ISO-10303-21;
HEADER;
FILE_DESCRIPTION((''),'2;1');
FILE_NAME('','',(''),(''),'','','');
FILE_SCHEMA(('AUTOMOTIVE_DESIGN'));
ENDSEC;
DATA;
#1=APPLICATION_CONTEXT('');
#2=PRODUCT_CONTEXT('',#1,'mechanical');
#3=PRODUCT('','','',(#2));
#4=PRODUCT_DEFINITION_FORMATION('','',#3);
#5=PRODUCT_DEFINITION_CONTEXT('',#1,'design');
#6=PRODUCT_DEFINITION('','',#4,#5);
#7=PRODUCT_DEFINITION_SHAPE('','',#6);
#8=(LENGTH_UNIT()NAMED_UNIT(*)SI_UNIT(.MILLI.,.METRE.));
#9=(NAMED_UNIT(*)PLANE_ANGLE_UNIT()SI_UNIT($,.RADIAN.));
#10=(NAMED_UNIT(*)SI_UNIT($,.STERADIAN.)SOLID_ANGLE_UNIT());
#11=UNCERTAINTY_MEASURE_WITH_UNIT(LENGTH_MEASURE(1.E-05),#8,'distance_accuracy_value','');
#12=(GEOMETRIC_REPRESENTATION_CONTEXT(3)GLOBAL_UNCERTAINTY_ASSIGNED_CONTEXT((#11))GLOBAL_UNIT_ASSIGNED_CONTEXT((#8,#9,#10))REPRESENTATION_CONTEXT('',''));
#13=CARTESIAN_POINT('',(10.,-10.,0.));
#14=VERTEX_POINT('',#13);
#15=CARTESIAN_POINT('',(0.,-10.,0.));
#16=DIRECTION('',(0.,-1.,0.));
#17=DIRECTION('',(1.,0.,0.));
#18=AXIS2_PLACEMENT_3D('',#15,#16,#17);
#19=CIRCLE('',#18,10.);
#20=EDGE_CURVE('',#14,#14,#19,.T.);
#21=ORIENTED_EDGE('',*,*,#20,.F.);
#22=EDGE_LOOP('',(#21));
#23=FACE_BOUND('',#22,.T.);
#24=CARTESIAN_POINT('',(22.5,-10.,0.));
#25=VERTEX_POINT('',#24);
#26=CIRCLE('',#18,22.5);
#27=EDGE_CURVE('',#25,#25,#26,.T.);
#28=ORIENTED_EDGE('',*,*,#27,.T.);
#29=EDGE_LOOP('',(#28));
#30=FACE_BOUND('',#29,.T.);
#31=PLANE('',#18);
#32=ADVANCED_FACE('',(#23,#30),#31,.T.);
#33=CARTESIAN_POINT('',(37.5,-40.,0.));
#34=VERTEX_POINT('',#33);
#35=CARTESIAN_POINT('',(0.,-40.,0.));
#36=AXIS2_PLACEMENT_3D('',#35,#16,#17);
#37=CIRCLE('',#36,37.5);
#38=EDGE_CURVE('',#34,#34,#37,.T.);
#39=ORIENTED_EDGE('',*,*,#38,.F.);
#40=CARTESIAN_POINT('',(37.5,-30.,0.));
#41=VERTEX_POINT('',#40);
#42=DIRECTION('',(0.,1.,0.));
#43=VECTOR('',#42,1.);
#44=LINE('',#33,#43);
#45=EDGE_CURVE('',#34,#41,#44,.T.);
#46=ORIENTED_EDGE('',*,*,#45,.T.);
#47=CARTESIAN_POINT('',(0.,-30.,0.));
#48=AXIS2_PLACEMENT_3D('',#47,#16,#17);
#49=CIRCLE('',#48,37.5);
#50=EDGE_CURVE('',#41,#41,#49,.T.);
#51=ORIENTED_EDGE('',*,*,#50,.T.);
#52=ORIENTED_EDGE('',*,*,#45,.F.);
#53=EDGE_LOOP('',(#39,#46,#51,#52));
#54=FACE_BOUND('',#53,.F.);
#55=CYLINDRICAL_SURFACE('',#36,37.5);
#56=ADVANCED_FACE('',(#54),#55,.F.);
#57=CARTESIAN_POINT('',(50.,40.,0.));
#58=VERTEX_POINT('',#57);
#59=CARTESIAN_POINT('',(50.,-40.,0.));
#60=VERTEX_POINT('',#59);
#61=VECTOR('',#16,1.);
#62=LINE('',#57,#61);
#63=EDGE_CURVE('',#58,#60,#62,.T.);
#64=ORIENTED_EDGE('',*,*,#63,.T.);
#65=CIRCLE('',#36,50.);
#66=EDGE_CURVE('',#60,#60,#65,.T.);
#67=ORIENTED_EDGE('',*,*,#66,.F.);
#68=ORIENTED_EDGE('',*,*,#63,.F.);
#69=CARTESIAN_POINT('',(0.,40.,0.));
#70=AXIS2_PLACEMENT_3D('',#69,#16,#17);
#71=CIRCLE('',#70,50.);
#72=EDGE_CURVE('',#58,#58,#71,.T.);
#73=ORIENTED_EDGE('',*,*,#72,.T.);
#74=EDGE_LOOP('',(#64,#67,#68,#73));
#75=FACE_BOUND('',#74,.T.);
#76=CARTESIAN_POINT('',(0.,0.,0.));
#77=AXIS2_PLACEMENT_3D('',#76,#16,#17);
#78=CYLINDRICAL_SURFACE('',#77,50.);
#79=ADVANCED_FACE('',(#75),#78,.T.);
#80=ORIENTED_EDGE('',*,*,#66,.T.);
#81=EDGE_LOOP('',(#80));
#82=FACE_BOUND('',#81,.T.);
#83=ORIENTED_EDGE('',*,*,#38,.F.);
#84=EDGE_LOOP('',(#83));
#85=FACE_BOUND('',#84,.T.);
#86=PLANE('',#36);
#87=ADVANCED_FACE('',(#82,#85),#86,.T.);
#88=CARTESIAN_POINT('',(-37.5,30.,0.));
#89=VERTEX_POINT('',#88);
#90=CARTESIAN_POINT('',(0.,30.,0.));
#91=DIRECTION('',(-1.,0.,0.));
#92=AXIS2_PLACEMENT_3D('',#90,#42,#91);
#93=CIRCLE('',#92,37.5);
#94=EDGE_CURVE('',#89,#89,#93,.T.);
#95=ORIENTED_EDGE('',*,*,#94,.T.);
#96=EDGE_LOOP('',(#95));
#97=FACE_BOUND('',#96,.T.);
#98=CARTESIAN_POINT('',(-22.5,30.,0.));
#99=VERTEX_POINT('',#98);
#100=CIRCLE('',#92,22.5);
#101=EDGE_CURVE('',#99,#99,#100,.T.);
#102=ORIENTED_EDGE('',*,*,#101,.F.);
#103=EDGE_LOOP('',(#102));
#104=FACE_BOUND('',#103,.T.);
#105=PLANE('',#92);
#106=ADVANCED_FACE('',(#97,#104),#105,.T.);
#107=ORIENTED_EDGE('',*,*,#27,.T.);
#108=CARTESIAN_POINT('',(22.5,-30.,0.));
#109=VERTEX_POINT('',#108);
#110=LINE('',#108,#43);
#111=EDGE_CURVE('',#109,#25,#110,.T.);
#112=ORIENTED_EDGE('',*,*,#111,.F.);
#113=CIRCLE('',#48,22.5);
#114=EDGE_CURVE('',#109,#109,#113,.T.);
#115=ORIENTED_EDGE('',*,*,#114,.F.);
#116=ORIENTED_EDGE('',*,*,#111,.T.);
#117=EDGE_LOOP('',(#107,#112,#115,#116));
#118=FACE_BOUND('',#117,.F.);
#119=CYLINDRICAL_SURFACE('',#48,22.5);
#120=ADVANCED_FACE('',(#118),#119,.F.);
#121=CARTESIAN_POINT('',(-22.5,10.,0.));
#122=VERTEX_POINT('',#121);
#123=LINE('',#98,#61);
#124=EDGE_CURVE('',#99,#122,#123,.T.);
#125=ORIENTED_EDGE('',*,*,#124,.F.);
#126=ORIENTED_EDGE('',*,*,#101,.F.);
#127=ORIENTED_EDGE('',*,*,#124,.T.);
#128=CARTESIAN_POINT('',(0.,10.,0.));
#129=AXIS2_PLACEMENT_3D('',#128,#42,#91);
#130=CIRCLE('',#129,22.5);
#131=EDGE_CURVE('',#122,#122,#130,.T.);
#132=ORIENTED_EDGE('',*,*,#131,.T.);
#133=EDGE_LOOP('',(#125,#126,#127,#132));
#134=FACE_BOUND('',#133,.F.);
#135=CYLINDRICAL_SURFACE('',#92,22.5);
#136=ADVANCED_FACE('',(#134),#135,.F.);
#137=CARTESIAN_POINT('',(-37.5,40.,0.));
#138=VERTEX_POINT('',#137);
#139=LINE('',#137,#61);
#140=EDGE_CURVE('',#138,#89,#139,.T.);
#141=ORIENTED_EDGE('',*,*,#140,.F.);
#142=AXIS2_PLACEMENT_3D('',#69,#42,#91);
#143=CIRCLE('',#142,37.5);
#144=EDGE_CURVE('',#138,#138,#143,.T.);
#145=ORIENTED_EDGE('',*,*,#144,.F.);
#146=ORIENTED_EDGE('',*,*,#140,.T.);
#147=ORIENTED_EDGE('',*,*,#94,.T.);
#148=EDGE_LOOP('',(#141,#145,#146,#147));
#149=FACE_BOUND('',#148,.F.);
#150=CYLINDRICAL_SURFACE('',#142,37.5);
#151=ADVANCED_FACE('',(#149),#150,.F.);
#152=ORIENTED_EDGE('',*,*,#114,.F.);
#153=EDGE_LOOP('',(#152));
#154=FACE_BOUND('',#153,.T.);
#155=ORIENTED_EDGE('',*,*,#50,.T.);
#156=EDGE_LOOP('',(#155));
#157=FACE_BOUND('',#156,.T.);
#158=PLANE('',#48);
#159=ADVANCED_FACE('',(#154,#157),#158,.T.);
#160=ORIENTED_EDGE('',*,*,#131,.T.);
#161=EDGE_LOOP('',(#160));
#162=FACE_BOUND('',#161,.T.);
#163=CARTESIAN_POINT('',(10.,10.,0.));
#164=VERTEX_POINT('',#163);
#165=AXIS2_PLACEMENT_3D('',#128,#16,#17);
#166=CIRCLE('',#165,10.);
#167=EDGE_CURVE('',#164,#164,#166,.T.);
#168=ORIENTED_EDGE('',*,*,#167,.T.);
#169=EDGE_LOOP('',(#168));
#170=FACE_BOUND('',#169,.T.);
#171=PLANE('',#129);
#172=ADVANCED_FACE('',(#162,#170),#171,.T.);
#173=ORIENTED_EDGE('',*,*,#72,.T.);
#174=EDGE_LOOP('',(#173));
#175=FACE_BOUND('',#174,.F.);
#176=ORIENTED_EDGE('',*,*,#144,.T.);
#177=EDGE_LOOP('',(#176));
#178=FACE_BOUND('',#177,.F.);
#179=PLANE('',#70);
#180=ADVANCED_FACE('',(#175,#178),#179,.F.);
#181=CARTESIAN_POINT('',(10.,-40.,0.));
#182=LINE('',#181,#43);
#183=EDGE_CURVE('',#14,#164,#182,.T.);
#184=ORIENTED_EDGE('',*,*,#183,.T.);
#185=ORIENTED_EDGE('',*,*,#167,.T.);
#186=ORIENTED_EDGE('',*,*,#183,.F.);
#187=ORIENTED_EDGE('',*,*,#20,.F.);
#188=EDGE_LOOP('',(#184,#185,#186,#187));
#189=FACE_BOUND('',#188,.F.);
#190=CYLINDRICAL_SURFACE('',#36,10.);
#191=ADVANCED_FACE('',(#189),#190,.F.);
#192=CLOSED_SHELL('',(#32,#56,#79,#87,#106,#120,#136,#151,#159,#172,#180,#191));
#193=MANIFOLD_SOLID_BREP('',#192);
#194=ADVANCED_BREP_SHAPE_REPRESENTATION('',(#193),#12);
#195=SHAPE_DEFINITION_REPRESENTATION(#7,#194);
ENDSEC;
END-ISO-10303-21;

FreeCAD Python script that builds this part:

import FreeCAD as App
import Part
import Sketcher

V = App.Vector

doc = App.newDocument("Part")
params = doc.addObject("Spreadsheet::Sheet", "Params")
for row, (alias, value) in enumerate([
    ("sketch1_diameter", "100 mm"),
    ("pad1_length", "80 mm"),
    ("sketch2_diameter", "20 mm"),
    ("sketch3_diameter", "75 mm"),
    ("pocket2_length", "10 mm"),
    ("sketch4_diameter", "45 mm"),
    ("pocket3_length", "20 mm"),
    ("sketch5_diameter", "75 mm"),
    ("pocket4_length", "10 mm"),
    ("sketch6_diameter", "45 mm"),
    ("pocket5_length", "20 mm"),
], start=1):
    params.set(f"A{row}", alias)
    params.set(f"B{row}", "=" + value)
    params.setAlias(f"B{row}", alias)

body = doc.addObject("PartDesign::Body", "Body")

# Sketch on XZ plane
sketch1 = doc.addObject("Sketcher::SketchObject", "Sketch")
body.addObject(sketch1)
sketch1.AttachmentSupport = (doc.XZ_Plane, [""])
sketch1.MapMode = "FlatFace"
sketch1.addGeometry(Part.Circle(V(0, 0, 0), V(0, 0, 1), 50), False)
sketch1.addConstraint([
    Sketcher.Constraint("Coincident", 0, 3, -1, 1),
    Sketcher.Constraint("Diameter", 0, 100.0),
])
sketch1.setExpression("Constraints[1]", "Params.sketch1_diameter")
pad1 = doc.addObject("PartDesign::Pad", "Pad")
body.addObject(pad1)
pad1.Profile = sketch1
pad1.setExpression("Length", "Params.pad1_length")
pad1.Midplane = True

# Sketch on XZ plane
sketch2 = doc.addObject("Sketcher::SketchObject", "Sketch001")
body.addObject(sketch2)
sketch2.AttachmentSupport = (doc.XZ_Plane, [""])
sketch2.MapMode = "FlatFace"
sketch2.AttachmentOffset = App.Placement(V(0, 0, 40), App.Rotation())
sketch2.addGeometry(Part.Circle(V(0, 0, 0), V(0, 0, 1), 10), False)
sketch2.addConstraint([
    Sketcher.Constraint("Coincident", 0, 3, -1, 1),
    Sketcher.Constraint("Diameter", 0, 20.0),
])
sketch2.setExpression("Constraints[1]", "Params.sketch2_diameter")
pocket1 = doc.addObject("PartDesign::Pocket", "Pocket")
body.addObject(pocket1)
pocket1.Profile = sketch2
pocket1.Type = "ThroughAll"

# Sketch on XZ plane
sketch3 = doc.addObject("Sketcher::SketchObject", "Sketch002")
body.addObject(sketch3)
sketch3.AttachmentSupport = (doc.XZ_Plane, [""])
sketch3.MapMode = "FlatFace"
sketch3.AttachmentOffset = App.Placement(V(0, 0, -40), App.Rotation())
sketch3.addGeometry(Part.Circle(V(0, 0, 0), V(0, 0, 1), 38), False)
sketch3.addConstraint([
    Sketcher.Constraint("Coincident", 0, 3, -1, 1),
    Sketcher.Constraint("Diameter", 0, 75.0),
])
sketch3.setExpression("Constraints[1]", "Params.sketch3_diameter")
pocket2 = doc.addObject("PartDesign::Pocket", "Pocket001")
body.addObject(pocket2)
pocket2.Profile = sketch3
pocket2.setExpression("Length", "Params.pocket2_length")
pocket2.Reversed = True

# Sketch on XZ plane
sketch4 = doc.addObject("Sketcher::SketchObject", "Sketch003")
body.addObject(sketch4)
sketch4.AttachmentSupport = (doc.XZ_Plane, [""])
sketch4.MapMode = "FlatFace"
sketch4.AttachmentOffset = App.Placement(V(0, 0, -30), App.Rotation())
sketch4.addGeometry(Part.Circle(V(0, 0, 0), V(0, 0, 1), 22), False)
sketch4.addConstraint([
    Sketcher.Constraint("Coincident", 0, 3, -1, 1),
    Sketcher.Constraint("Diameter", 0, 45.0),
])
sketch4.setExpression("Constraints[1]", "Params.sketch4_diameter")
pocket3 = doc.addObject("PartDesign::Pocket", "Pocket002")
body.addObject(pocket3)
pocket3.Profile = sketch4
pocket3.setExpression("Length", "Params.pocket3_length")
pocket3.Reversed = True

# Sketch on XZ plane
sketch5 = doc.addObject("Sketcher::SketchObject", "Sketch004")
body.addObject(sketch5)
sketch5.AttachmentSupport = (doc.XZ_Plane, [""])
sketch5.MapMode = "FlatFace"
sketch5.AttachmentOffset = App.Placement(V(0, 0, 40), App.Rotation())
sketch5.addGeometry(Part.Circle(V(0, 0, 0), V(0, 0, 1), 38), False)
sketch5.addConstraint([
    Sketcher.Constraint("Coincident", 0, 3, -1, 1),
    Sketcher.Constraint("Diameter", 0, 75.0),
])
sketch5.setExpression("Constraints[1]", "Params.sketch5_diameter")
pocket4 = doc.addObject("PartDesign::Pocket", "Pocket003")
body.addObject(pocket4)
pocket4.Profile = sketch5
pocket4.setExpression("Length", "Params.pocket4_length")

# Sketch on XZ plane
sketch6 = doc.addObject("Sketcher::SketchObject", "Sketch005")
body.addObject(sketch6)
sketch6.AttachmentSupport = (doc.XZ_Plane, [""])
sketch6.MapMode = "FlatFace"
sketch6.AttachmentOffset = App.Placement(V(0, 0, 30), App.Rotation())
sketch6.addGeometry(Part.Circle(V(0, 0, 0), V(0, 0, 1), 22), False)
sketch6.addConstraint([
    Sketcher.Constraint("Coincident", 0, 3, -1, 1),
    Sketcher.Constraint("Diameter", 0, 45.0),
])
sketch6.setExpression("Constraints[1]", "Params.sketch6_diameter")
pocket5 = doc.addObject("PartDesign::Pocket", "Pocket004")
body.addObject(pocket5)
pocket5.Profile = sketch6
pocket5.setExpression("Length", "Params.pocket5_length")

doc.recompute()
